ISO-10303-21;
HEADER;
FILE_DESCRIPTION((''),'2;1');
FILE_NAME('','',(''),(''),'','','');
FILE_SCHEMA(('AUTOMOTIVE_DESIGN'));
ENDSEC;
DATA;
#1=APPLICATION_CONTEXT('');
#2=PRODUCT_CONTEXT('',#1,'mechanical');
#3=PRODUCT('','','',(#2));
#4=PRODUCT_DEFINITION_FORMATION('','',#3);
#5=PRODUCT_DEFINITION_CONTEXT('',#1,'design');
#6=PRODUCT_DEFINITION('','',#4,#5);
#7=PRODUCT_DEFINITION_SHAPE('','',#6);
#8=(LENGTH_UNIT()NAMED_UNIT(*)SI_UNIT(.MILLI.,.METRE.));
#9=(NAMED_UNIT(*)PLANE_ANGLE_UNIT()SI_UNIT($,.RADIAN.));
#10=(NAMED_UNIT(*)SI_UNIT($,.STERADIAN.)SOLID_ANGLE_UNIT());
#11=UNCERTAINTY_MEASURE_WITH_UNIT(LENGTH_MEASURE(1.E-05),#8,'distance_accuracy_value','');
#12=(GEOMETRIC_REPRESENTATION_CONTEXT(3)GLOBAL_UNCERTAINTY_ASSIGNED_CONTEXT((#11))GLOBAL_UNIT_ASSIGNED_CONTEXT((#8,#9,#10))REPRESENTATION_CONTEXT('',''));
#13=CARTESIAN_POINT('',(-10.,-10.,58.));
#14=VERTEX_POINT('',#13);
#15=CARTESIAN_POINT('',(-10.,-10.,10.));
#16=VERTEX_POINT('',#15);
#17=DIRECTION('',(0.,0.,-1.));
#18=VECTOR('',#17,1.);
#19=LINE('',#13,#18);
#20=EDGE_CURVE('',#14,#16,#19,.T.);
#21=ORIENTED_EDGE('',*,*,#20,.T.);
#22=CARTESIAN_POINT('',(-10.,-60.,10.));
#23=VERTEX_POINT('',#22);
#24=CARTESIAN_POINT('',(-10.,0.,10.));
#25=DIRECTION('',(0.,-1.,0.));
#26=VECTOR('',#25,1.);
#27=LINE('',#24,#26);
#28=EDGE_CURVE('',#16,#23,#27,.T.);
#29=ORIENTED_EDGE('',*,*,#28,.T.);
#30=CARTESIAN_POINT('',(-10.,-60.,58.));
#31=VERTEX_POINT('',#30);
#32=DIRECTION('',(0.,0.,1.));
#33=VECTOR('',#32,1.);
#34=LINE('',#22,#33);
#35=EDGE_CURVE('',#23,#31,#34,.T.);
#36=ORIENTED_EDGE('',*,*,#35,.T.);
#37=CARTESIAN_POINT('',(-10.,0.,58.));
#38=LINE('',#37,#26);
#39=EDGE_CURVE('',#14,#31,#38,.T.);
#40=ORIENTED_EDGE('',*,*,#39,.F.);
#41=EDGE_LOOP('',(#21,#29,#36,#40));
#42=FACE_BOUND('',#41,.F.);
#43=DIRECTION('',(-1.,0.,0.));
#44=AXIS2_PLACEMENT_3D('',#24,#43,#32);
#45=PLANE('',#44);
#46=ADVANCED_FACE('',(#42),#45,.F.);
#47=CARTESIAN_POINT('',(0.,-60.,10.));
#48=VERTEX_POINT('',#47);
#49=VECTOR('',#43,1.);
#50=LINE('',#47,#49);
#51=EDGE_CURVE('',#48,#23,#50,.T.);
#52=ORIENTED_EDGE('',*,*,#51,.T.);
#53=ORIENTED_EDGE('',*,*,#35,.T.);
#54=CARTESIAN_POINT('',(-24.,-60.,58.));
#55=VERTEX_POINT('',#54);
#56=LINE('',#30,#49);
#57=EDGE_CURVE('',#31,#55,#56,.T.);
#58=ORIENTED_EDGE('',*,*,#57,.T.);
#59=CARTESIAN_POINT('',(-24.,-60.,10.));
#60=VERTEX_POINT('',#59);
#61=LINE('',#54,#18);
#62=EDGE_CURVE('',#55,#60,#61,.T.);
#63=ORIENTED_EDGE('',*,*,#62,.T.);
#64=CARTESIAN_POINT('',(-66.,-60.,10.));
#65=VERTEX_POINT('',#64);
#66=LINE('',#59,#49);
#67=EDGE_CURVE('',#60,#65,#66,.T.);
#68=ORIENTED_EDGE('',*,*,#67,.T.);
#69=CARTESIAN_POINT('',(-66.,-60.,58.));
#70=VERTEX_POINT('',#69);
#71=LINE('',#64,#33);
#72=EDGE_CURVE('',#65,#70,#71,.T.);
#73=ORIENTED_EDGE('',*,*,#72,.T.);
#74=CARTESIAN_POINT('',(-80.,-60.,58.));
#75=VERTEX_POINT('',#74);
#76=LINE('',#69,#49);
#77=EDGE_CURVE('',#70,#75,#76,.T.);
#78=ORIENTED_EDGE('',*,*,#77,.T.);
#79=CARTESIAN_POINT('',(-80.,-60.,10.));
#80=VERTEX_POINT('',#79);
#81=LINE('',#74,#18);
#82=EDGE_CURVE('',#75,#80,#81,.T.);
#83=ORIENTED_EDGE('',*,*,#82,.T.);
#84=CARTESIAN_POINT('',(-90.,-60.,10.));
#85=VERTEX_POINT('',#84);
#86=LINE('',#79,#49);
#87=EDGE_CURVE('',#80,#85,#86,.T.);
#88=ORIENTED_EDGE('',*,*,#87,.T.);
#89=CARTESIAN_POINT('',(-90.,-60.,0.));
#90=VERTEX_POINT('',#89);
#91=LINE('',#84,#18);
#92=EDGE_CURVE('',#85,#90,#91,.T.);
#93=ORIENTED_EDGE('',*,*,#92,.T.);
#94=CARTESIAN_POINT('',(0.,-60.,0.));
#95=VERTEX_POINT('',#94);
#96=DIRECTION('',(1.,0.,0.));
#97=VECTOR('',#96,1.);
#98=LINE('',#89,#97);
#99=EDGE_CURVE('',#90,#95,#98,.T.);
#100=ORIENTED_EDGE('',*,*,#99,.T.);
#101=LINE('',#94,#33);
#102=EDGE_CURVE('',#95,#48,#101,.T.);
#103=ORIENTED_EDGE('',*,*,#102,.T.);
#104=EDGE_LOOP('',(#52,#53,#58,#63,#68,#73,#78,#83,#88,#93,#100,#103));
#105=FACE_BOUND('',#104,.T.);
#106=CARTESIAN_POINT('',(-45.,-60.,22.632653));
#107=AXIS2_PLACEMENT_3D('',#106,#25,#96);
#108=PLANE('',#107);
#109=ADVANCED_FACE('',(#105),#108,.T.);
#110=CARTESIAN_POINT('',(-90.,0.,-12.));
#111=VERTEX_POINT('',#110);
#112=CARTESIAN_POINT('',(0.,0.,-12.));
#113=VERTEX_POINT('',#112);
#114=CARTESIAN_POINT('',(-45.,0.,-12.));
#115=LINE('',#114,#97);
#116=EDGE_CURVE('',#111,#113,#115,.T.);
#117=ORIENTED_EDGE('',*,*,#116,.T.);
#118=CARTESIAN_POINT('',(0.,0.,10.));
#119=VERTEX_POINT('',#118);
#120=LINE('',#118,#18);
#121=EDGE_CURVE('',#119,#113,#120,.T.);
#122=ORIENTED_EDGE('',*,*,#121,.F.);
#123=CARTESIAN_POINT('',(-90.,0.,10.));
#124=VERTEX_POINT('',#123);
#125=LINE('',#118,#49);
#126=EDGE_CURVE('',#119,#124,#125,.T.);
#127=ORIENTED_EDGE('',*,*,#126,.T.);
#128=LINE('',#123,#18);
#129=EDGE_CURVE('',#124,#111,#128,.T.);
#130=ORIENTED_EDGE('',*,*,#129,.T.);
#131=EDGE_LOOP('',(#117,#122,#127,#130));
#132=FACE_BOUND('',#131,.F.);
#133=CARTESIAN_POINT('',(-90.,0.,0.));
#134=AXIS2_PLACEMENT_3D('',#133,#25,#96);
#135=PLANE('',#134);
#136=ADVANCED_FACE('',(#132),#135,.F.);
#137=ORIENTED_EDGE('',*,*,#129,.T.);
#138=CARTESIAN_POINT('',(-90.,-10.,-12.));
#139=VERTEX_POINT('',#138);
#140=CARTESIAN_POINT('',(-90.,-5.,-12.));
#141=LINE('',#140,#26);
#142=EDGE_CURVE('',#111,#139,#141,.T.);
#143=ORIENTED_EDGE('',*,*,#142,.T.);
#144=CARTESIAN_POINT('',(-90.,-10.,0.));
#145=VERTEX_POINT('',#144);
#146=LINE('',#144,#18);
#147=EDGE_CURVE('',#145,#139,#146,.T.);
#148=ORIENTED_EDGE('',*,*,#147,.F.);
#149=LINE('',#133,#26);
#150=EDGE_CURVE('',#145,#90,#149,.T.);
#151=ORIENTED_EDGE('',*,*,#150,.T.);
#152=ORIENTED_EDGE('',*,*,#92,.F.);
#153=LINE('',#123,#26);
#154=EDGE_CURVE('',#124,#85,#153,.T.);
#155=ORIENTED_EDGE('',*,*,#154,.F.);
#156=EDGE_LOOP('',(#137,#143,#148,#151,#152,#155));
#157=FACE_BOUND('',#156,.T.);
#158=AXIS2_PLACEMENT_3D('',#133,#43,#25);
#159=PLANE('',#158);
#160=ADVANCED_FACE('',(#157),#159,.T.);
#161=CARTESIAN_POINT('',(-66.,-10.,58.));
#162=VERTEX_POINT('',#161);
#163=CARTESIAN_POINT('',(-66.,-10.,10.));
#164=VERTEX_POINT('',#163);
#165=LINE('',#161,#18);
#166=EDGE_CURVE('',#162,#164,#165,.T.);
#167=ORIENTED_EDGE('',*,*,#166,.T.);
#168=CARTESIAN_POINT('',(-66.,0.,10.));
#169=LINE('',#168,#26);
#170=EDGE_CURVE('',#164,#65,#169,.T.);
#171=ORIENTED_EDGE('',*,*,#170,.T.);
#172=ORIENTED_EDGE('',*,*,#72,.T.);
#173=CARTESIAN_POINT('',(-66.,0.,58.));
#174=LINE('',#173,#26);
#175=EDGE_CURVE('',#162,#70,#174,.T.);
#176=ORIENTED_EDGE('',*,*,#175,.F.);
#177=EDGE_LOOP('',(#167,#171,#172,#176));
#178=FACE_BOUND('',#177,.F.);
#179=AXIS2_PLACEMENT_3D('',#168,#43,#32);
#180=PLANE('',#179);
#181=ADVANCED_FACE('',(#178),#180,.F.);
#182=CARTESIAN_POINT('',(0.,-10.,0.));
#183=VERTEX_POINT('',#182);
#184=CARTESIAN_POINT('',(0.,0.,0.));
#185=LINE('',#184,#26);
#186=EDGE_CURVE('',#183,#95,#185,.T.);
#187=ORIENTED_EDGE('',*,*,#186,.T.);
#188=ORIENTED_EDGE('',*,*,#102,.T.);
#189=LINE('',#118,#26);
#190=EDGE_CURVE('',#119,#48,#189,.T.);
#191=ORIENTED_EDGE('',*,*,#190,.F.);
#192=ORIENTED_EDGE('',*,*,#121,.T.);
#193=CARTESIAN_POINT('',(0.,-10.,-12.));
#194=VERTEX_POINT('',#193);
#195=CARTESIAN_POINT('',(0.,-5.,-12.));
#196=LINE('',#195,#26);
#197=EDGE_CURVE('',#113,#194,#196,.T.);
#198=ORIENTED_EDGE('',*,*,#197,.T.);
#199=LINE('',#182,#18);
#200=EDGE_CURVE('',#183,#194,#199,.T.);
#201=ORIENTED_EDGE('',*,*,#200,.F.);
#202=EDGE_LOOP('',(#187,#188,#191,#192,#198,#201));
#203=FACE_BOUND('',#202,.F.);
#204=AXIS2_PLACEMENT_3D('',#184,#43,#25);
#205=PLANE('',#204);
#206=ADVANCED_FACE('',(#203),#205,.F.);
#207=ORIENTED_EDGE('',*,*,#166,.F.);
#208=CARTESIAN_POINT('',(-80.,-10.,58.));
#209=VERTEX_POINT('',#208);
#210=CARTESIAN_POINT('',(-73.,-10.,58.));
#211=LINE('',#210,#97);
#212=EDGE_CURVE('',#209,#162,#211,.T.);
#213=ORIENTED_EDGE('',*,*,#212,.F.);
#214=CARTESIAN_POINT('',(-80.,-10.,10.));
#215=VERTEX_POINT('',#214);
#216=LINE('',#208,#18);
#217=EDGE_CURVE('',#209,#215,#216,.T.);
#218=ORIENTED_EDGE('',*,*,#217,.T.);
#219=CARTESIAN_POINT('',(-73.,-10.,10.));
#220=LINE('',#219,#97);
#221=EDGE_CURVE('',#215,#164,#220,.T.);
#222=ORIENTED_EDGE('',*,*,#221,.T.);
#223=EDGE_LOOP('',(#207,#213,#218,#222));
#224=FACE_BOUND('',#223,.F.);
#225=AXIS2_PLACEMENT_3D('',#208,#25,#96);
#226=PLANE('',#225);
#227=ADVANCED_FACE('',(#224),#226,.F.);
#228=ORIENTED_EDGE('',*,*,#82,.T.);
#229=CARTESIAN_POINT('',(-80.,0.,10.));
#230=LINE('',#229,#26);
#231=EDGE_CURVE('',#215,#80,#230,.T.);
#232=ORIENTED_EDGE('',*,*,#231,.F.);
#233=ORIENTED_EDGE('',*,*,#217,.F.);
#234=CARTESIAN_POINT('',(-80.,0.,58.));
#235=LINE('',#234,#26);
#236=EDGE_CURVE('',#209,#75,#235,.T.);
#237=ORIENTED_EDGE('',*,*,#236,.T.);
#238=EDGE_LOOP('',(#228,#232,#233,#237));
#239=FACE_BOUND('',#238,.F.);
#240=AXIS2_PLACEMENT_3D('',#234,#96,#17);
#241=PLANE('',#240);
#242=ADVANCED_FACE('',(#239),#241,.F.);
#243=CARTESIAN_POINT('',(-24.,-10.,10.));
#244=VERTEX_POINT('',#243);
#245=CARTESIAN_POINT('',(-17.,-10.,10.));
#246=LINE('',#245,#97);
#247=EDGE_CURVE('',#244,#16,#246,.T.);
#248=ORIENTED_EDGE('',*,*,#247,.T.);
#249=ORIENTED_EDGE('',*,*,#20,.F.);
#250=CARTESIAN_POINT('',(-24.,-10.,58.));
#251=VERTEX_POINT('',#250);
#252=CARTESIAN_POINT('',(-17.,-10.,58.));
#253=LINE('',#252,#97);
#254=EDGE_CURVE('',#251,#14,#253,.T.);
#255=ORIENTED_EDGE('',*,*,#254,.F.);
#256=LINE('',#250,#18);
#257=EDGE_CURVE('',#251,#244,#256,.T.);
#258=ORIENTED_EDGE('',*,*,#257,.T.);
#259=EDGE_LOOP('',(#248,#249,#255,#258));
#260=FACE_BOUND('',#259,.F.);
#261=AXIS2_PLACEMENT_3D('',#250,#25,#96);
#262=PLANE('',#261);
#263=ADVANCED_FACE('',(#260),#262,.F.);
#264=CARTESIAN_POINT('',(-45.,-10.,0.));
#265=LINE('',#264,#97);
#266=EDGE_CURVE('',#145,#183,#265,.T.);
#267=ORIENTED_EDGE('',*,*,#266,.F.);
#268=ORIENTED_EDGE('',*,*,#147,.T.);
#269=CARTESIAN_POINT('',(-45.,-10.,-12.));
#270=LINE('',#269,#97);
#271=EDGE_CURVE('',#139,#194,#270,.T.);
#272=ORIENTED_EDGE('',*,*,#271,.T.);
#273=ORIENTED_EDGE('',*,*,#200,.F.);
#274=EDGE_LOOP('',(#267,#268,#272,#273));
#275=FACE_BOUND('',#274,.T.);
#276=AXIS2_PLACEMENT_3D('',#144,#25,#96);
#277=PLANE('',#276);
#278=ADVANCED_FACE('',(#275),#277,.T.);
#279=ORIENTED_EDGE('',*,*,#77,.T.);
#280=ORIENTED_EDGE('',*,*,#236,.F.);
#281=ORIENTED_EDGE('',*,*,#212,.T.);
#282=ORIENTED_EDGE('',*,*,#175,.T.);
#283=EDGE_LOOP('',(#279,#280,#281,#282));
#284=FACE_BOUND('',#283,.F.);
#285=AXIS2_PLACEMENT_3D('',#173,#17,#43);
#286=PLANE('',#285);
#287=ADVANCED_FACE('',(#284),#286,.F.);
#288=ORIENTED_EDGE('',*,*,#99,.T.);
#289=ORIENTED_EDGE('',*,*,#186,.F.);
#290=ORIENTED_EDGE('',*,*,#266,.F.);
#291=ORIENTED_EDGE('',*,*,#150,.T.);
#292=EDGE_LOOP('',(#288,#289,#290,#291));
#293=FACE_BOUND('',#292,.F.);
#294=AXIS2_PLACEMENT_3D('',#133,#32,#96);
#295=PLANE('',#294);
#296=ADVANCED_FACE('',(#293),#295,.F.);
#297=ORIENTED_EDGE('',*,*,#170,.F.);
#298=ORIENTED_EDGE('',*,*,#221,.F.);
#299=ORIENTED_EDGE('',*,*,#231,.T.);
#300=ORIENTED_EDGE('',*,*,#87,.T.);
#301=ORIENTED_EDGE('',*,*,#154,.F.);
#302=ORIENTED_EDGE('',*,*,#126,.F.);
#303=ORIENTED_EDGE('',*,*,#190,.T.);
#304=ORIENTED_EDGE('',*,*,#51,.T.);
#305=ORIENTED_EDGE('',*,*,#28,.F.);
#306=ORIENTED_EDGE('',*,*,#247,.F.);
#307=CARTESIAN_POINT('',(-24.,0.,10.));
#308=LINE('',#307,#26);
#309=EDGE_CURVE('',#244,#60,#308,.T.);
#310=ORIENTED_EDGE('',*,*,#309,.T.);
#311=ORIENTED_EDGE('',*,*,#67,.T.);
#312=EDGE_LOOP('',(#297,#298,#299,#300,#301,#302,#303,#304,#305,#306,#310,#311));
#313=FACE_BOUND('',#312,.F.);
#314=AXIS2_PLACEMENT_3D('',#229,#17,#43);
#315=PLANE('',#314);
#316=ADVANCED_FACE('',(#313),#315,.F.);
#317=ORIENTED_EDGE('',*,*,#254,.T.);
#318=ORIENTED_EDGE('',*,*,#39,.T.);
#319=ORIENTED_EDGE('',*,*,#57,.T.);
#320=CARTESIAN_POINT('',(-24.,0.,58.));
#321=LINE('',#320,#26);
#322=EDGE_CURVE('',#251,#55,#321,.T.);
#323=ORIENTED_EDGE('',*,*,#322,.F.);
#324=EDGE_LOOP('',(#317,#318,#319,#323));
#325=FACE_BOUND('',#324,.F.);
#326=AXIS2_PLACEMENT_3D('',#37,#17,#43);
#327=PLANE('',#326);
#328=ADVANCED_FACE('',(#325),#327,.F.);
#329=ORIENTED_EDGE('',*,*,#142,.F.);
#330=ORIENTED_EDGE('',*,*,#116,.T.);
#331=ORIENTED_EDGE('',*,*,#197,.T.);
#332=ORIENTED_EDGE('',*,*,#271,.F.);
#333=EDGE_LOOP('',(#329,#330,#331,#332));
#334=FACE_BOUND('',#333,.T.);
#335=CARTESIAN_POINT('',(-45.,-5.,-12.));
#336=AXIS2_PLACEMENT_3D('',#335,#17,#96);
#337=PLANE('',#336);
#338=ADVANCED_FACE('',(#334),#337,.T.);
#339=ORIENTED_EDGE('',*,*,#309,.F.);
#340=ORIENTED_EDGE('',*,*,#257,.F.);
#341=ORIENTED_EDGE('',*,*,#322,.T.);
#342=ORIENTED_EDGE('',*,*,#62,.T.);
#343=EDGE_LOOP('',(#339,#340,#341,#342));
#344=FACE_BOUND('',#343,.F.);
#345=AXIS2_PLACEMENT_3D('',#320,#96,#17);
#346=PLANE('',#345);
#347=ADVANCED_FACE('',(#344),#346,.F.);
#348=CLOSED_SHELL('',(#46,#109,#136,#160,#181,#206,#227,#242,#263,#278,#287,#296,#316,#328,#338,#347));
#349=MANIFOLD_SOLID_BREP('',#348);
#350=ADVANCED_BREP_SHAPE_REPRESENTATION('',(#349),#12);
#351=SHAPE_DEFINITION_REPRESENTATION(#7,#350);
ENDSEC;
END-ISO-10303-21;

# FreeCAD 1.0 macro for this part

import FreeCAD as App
import Part
import Sketcher
Q = App.Units.Quantity

doc = App.newDocument("Part")
params = doc.addObject("Spreadsheet::Sheet", "Params")
for row, (alias, value) in enumerate([
    ("sketch1_width", "90 mm"),
    ("sketch1_width2", "10 mm"),
    ("sketch1_width3", "14 mm"),
    ("sketch1_height", "48 mm"),
    ("pad1_length", "60 mm"),
    ("sketch2_width", "90 mm"),
    ("sketch2_height", "10 mm"),
    ("pad2_length", "12 mm"),
    ("sketch3_width", "14 mm"),
    ("sketch3_height", "10 mm"),
    ("pocket1_length", "48 mm"),
    ("sketch4_width", "14 mm"),
    ("sketch4_height", "10 mm"),
    ("pocket2_length", "48 mm"),
], start=1):
    params.set(f"A{row}", alias)
    params.set(f"B{row}", "=" + value)
    params.setAlias(f"B{row}", alias)

body = doc.addObject("PartDesign::Body", "Body")

sketch1 = body.newObject("Sketcher::SketchObject", "Sketch")
sketch1.AttachmentSupport = (doc.getObject("XZ_Plane"), [""])
sketch1.MapMode = "FlatFace"
sketch1.addGeometry(Part.LineSegment(App.Vector(-90, 0, 0), App.Vector(0, 0, 0)), False)
sketch1.addGeometry(Part.LineSegment(App.Vector(0, 0, 0), App.Vector(0, 10, 0)), False)
sketch1.addGeometry(Part.LineSegment(App.Vector(0, 10, 0), App.Vector(-10, 10, 0)), False)
sketch1.addGeometry(Part.LineSegment(App.Vector(-10, 10, 0), App.Vector(-10, 58, 0)), False)
sketch1.addGeometry(Part.LineSegment(App.Vector(-10, 58, 0), App.Vector(-24, 58, 0)), False)
sketch1.addGeometry(Part.LineSegment(App.Vector(-24, 58, 0), App.Vector(-24, 10, 0)), False)
sketch1.addGeometry(Part.LineSegment(App.Vector(-24, 10, 0), App.Vector(-66, 10, 0)), False)
sketch1.addGeometry(Part.LineSegment(App.Vector(-66, 10, 0), App.Vector(-66, 58, 0)), False)
sketch1.addGeometry(Part.LineSegment(App.Vector(-66, 58, 0), App.Vector(-80, 58, 0)), False)
sketch1.addGeometry(Part.LineSegment(App.Vector(-80, 58, 0), App.Vector(-80, 10, 0)), False)
sketch1.addGeometry(Part.LineSegment(App.Vector(-80, 10, 0), App.Vector(-90, 10, 0)), False)
sketch1.addGeometry(Part.LineSegment(App.Vector(-90, 10, 0), App.Vector(-90, 0, 0)), False)
sketch1.addConstraint(Sketcher.Constraint("Coincident", 0, 2, 1, 1))
sketch1.addConstraint(Sketcher.Constraint("Coincident", 1, 2, 2, 1))
sketch1.addConstraint(Sketcher.Constraint("Coincident", 2, 2, 3, 1))
sketch1.addConstraint(Sketcher.Constraint("Coincident", 3, 2, 4, 1))
sketch1.addConstraint(Sketcher.Constraint("Coincident", 4, 2, 5, 1))
sketch1.addConstraint(Sketcher.Constraint("Coincident", 5, 2, 6, 1))
sketch1.addConstraint(Sketcher.Constraint("Coincident", 6, 2, 7, 1))
sketch1.addConstraint(Sketcher.Constraint("Coincident", 7, 2, 8, 1))
sketch1.addConstraint(Sketcher.Constraint("Coincident", 8, 2, 9, 1))
sketch1.addConstraint(Sketcher.Constraint("Coincident", 9, 2, 10, 1))
sketch1.addConstraint(Sketcher.Constraint("Coincident", 10, 2, 11, 1))
sketch1.addConstraint(Sketcher.Constraint("Coincident", 11, 2, 0, 1))
sketch1.addConstraint(Sketcher.Constraint("Horizontal", 0))
sketch1.addConstraint(Sketcher.Constraint("Vertical", 1))
sketch1.addConstraint(Sketcher.Constraint("Horizontal", 2))
sketch1.addConstraint(Sketcher.Constraint("Vertical", 3))
sketch1.addConstraint(Sketcher.Constraint("Horizontal", 4))
sketch1.addConstraint(Sketcher.Constraint("Vertical", 5))
sketch1.addConstraint(Sketcher.Constraint("Horizontal", 6))
sketch1.addConstraint(Sketcher.Constraint("Vertical", 7))
sketch1.addConstraint(Sketcher.Constraint("Horizontal", 8))
sketch1.addConstraint(Sketcher.Constraint("Vertical", 9))
sketch1.addConstraint(Sketcher.Constraint("Horizontal", 10))
sketch1.addConstraint(Sketcher.Constraint("Vertical", 11))
sketch1.addConstraint(Sketcher.Constraint("Coincident", 0, 2, -1, 1))
sketch1.addConstraint(Sketcher.Constraint("Horizontal", 2, 2, 5, 2))
sketch1.addConstraint(Sketcher.Constraint("Horizontal", 4, 2, 7, 2))
sketch1.addConstraint(Sketcher.Constraint("Horizontal", 6, 2, 9, 2))
sketch1.addConstraint(Sketcher.Constraint("Equal", 4, 8))
sketch1.addConstraint(Sketcher.Constraint("Equal", 2, 10))
sketch1.addConstraint(Sketcher.Constraint("Equal", 10, 1))
sketch1.addConstraint(Sketcher.Constraint("DistanceX", 0, 1, 0, 2, Q("90 mm")))
sketch1.addConstraint(Sketcher.Constraint("DistanceX", 2, 2, 2, 1, Q("10 mm")))
sketch1.addConstraint(Sketcher.Constraint("DistanceX", 4, 2, 4, 1, Q("14 mm")))
sketch1.addConstraint(Sketcher.Constraint("DistanceY", 3, 1, 3, 2, Q("48 mm")))
sketch1.setExpression("Constraints[31]", "Params.sketch1_width")
sketch1.setExpression("Constraints[32]", "Params.sketch1_width2")
sketch1.setExpression("Constraints[33]", "Params.sketch1_width3")
sketch1.setExpression("Constraints[34]", "Params.sketch1_height")
pad1 = body.newObject("PartDesign::Pad", "Pad")
pad1.Profile = sketch1
pad1.setExpression("Length", "Params.pad1_length")

sketch2 = body.newObject("Sketcher::SketchObject", "Sketch001")
sketch2.AttachmentSupport = (doc.getObject("XY_Plane"), [""])
sketch2.MapMode = "FlatFace"
sketch2.addGeometry(Part.LineSegment(App.Vector(-90, -10, 0), App.Vector(-90, 0, 0)), False)
sketch2.addGeometry(Part.LineSegment(App.Vector(-90, 0, 0), App.Vector(0, 0, 0)), False)
sketch2.addGeometry(Part.LineSegment(App.Vector(0, 0, 0), App.Vector(0, -10, 0)), False)
sketch2.addGeometry(Part.LineSegment(App.Vector(0, -10, 0), App.Vector(-90, -10, 0)), False)
sketch2.addConstraint(Sketcher.Constraint("Coincident", 0, 2, 1, 1))
sketch2.addConstraint(Sketcher.Constraint("Coincident", 1, 2, 2, 1))
sketch2.addConstraint(Sketcher.Constraint("Coincident", 2, 2, 3, 1))
sketch2.addConstraint(Sketcher.Constraint("Coincident", 3, 2, 0, 1))
sketch2.addConstraint(Sketcher.Constraint("Vertical", 0))
sketch2.addConstraint(Sketcher.Constraint("Horizontal", 1))
sketch2.addConstraint(Sketcher.Constraint("Vertical", 2))
sketch2.addConstraint(Sketcher.Constraint("Horizontal", 3))
sketch2.addConstraint(Sketcher.Constraint("Coincident", 1, 2, -1, 1))
sketch2.addConstraint(Sketcher.Constraint("DistanceX", 1, 1, 1, 2, Q("90 mm")))
sketch2.addConstraint(Sketcher.Constraint("DistanceY", 0, 1, 0, 2, Q("10 mm")))
sketch2.setExpression("Constraints[9]", "Params.sketch2_width")
sketch2.setExpression("Constraints[10]", "Params.sketch2_height")
pad2 = body.newObject("PartDesign::Pad", "Pad001")
pad2.Profile = sketch2
pad2.setExpression("Length", "Params.pad2_length")
pad2.Reversed = True

sketch3 = body.newObject("Sketcher::SketchObject", "Sketch002")
sketch3.AttachmentSupport = (doc.getObject("XY_Plane"), [""])
sketch3.MapMode = "FlatFace"
sketch3.AttachmentOffset = App.Placement(App.Vector(0, 0, 58), App.Rotation())
sketch3.addGeometry(Part.LineSegment(App.Vector(-24, 0, 0), App.Vector(-24, -10, 0)), False)
sketch3.addGeometry(Part.LineSegment(App.Vector(-24, -10, 0), App.Vector(-10, -10, 0)), False)
sketch3.addGeometry(Part.LineSegment(App.Vector(-10, -10, 0), App.Vector(-10, 0, 0)), False)
sketch3.addGeometry(Part.LineSegment(App.Vector(-10, 0, 0), App.Vector(-24, 0, 0)), False)
sketch3.addConstraint(Sketcher.Constraint("Coincident", 0, 2, 1, 1))
sketch3.addConstraint(Sketcher.Constraint("Coincident", 1, 2, 2, 1))
sketch3.addConstraint(Sketcher.Constraint("Coincident", 2, 2, 3, 1))
sketch3.addConstraint(Sketcher.Constraint("Coincident", 3, 2, 0, 1))
sketch3.addConstraint(Sketcher.Constraint("Vertical", 0))
sketch3.addConstraint(Sketcher.Constraint("Horizontal", 1))
sketch3.addConstraint(Sketcher.Constraint("Vertical", 2))
sketch3.addConstraint(Sketcher.Constraint("Horizontal", 3))
sketch3.addConstraint(Sketcher.Constraint("PointOnObject", 2, 2, -1))
sketch3.addConstraint(Sketcher.Constraint("DistanceX", 1, 1, 1, 2, Q("14 mm")))
sketch3.addConstraint(Sketcher.Constraint("DistanceY", 0, 2, 0, 1, Q("10 mm")))
sketch3.addConstraint(Sketcher.Constraint("DistanceX", 0, 2, -1, 1, Q("24 mm")))
sketch3.setExpression("Constraints[9]", "Params.sketch3_width")
sketch3.setExpression("Constraints[10]", "Params.sketch3_height")
pocket1 = body.newObject("PartDesign::Pocket", "Pocket")
pocket1.Profile = sketch3
pocket1.setExpression("Length", "Params.pocket1_length")

sketch4 = body.newObject("Sketcher::SketchObject", "Sketch003")
sketch4.AttachmentSupport = (doc.getObject("XY_Plane"), [""])
sketch4.MapMode = "FlatFace"
sketch4.AttachmentOffset = App.Placement(App.Vector(0, 0, 58), App.Rotation())
sketch4.addGeometry(Part.LineSegment(App.Vector(-80, 0, 0), App.Vector(-80, -10, 0)), False)
sketch4.addGeometry(Part.LineSegment(App.Vector(-80, -10, 0), App.Vector(-66, -10, 0)), False)
sketch4.addGeometry(Part.LineSegment(App.Vector(-66, -10, 0), App.Vector(-66, 0, 0)), False)
sketch4.addGeometry(Part.LineSegment(App.Vector(-66, 0, 0), App.Vector(-80, 0, 0)), False)
sketch4.addConstraint(Sketcher.Constraint("Coincident", 0, 2, 1, 1))
sketch4.addConstraint(Sketcher.Constraint("Coincident", 1, 2, 2, 1))
sketch4.addConstraint(Sketcher.Constraint("Coincident", 2, 2, 3, 1))
sketch4.addConstraint(Sketcher.Constraint("Coincident", 3, 2, 0, 1))
sketch4.addConstraint(Sketcher.Constraint("Vertical", 0))
sketch4.addConstraint(Sketcher.Constraint("Horizontal", 1))
sketch4.addConstraint(Sketcher.Constraint("Vertical", 2))
sketch4.addConstraint(Sketcher.Constraint("Horizontal", 3))
sketch4.addConstraint(Sketcher.Constraint("PointOnObject", 2, 2, -1))
sketch4.addConstraint(Sketcher.Constraint("DistanceX", 1, 1, 1, 2, Q("14 mm")))
sketch4.addConstraint(Sketcher.Constraint("DistanceY", 0, 2, 0, 1, Q("10 mm")))
sketch4.addConstraint(Sketcher.Constraint("DistanceX", 0, 2, -1, 1, Q("80 mm")))
sketch4.setExpression("Constraints[9]", "Params.sketch4_width")
sketch4.setExpression("Constraints[10]", "Params.sketch4_height")
pocket2 = body.newObject("PartDesign::Pocket", "Pocket001")
pocket2.Profile = sketch4
pocket2.setExpression("Length", "Params.pocket2_length")

doc.recompute()
